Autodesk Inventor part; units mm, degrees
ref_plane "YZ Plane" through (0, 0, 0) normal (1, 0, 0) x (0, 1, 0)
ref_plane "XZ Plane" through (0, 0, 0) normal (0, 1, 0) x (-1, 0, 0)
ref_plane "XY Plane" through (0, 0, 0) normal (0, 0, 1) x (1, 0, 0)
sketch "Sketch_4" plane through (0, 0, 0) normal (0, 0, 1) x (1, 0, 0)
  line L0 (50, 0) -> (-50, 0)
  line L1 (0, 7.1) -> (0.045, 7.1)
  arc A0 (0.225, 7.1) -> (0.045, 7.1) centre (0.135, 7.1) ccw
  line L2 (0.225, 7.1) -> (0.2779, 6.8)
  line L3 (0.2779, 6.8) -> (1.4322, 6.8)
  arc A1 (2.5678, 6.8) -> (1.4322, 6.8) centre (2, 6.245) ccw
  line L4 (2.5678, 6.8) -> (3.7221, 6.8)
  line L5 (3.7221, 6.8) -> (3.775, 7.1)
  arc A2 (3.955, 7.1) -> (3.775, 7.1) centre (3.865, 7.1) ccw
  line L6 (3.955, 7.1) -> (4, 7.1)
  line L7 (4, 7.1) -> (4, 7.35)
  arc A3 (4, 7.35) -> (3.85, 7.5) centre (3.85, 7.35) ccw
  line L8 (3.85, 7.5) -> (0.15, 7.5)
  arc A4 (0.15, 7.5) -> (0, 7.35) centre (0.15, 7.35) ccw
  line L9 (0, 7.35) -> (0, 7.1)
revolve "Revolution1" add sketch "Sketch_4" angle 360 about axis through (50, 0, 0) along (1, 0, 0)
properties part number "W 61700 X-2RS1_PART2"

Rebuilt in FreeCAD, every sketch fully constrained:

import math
import FreeCAD as App
import Part
import Sketcher
Q = App.Units.Quantity

doc = App.newDocument("Part")
params = doc.addObject("Spreadsheet::Sheet", "Params")
for row, (alias, value) in enumerate([
    ("sketch1_radius", "0.09 mm"),
    ("sketch1_radius2", "0.15 mm"),
    ("sketch1_width", "3.7 mm"),
    ("sketch1_height", "0.25 mm"),
    ("revolution_angle", "360 deg"),
], start=1):
    params.set(f"A{row}", alias)
    params.set(f"B{row}", "=" + value)
    params.setAlias(f"B{row}", alias)

body = doc.addObject("PartDesign::Body", "Body")

# Sketch on XY plane
sketch1 = body.newObject("Sketcher::SketchObject", "Sketch")
sketch1.AttachmentSupport = (doc.getObject("XY_Plane"), [""])
sketch1.MapMode = "FlatFace"
sketch1.addGeometry(Part.LineSegment(App.Vector(0, 7.35, 0), App.Vector(0, 7.1, 0)), False)
sketch1.addGeometry(Part.LineSegment(App.Vector(0, 7.1, 0), App.Vector(0.045, 7.1, 0)), False)
sketch1.addGeometry(Part.ArcOfCircle(Part.Circle(App.Vector(0.135, 7.1, 0), App.Vector(0, 0, 1), 0.09), math.radians(0), math.radians(180)), False)
sketch1.addGeometry(Part.LineSegment(App.Vector(0.225, 7.1, 0), App.Vector(0.278, 6.8, 0)), False)
sketch1.addGeometry(Part.LineSegment(App.Vector(0.278, 6.8, 0), App.Vector(1.432, 6.8, 0)), False)
sketch1.addGeometry(Part.ArcOfCircle(Part.Circle(App.Vector(2, 6.245, 0), App.Vector(0, 0, 1), 0.794), math.radians(44), math.radians(136)), False)
sketch1.addGeometry(Part.LineSegment(App.Vector(2.568, 6.8, 0), App.Vector(3.722, 6.8, 0)), False)
sketch1.addGeometry(Part.LineSegment(App.Vector(3.722, 6.8, 0), App.Vector(3.775, 7.1, 0)), False)
sketch1.addGeometry(Part.ArcOfCircle(Part.Circle(App.Vector(3.865, 7.1, 0), App.Vector(0, 0, 1), 0.09), math.radians(0), math.radians(180)), False)
sketch1.addGeometry(Part.LineSegment(App.Vector(3.955, 7.1, 0), App.Vector(4, 7.1, 0)), False)
sketch1.addGeometry(Part.LineSegment(App.Vector(4, 7.1, 0), App.Vector(4, 7.35, 0)), False)
sketch1.addGeometry(Part.ArcOfCircle(Part.Circle(App.Vector(3.85, 7.35, 0), App.Vector(0, 0, 1), 0.15), math.radians(0), math.radians(90)), False)
sketch1.addGeometry(Part.LineSegment(App.Vector(3.85, 7.5, 0), App.Vector(0.15, 7.5, 0)), False)
sketch1.addGeometry(Part.ArcOfCircle(Part.Circle(App.Vector(0.15, 7.35, 0), App.Vector(0, 0, 1), 0.15), math.radians(90), math.radians(180)), False)
sketch1.addConstraint(Sketcher.Constraint("Coincident", 0, 2, 1, 1))
sketch1.addConstraint(Sketcher.Constraint("Coincident", 1, 2, 2, 2))
sketch1.addConstraint(Sketcher.Constraint("Coincident", 2, 1, 3, 1))
sketch1.addConstraint(Sketcher.Constraint("Coincident", 3, 2, 4, 1))
sketch1.addConstraint(Sketcher.Constraint("Coincident", 4, 2, 5, 2))
sketch1.addConstraint(Sketcher.Constraint("Coincident", 5, 1, 6, 1))
sketch1.addConstraint(Sketcher.Constraint("Coincident", 6, 2, 7, 1))
sketch1.addConstraint(Sketcher.Constraint("Coincident", 7, 2, 8, 2))
sketch1.addConstraint(Sketcher.Constraint("Coincident", 8, 1, 9, 1))
sketch1.addConstraint(Sketcher.Constraint("Coincident", 9, 2, 10, 1))
sketch1.addConstraint(Sketcher.Constraint("Tangent", 10, 2, 11, 1))
sketch1.addConstraint(Sketcher.Constraint("Tangent", 11, 2, 12, 1))
sketch1.addConstraint(Sketcher.Constraint("Tangent", 12, 2, 13, 1))
sketch1.addConstraint(Sketcher.Constraint("Tangent", 13, 2, 0, 1))
sketch1.addConstraint(Sketcher.Constraint("Vertical", 0))
sketch1.addConstraint(Sketcher.Constraint("Horizontal", 1))
sketch1.addConstraint(Sketcher.Constraint("Horizontal", 4))
sketch1.addConstraint(Sketcher.Constraint("Horizontal", 6))
sketch1.addConstraint(Sketcher.Constraint("Horizontal", 9))
sketch1.addConstraint(Sketcher.Constraint("Vertical", 10))
sketch1.addConstraint(Sketcher.Constraint("Horizontal", 12))
sketch1.addConstraint(Sketcher.Constraint("Equal", 2, 8))
sketch1.addConstraint(Sketcher.Constraint("Equal", 11, 13))
sketch1.addConstraint(Sketcher.Constraint("PointOnObject", 0, 2, -2))
sketch1.addConstraint(Sketcher.Constraint("Horizontal", 2, 3, 8, 3))
sketch1.addConstraint(Sketcher.Constraint("Horizontal", 8, 3, 0, 2))
sketch1.addConstraint(Sketcher.Constraint("Horizontal", 1, 2, 2, 1))
sketch1.addConstraint(Sketcher.Constraint("Horizontal", 4, 2, 5, 1))
sketch1.addConstraint(Sketcher.Constraint("Horizontal", 2, 1, 7, 2))
sketch1.addConstraint(Sketcher.Constraint("Horizontal", 7, 2, 8, 1))
sketch1.addConstraint(Sketcher.Constraint("Equal", 4, 6))
sketch1.addConstraint(Sketcher.Constraint("Equal", 1, 9))
sketch1.addConstraint(Sketcher.Constraint("Equal", 3, 7))
sketch1.addConstraint(Sketcher.Constraint("Angle", 3, Q("-79.9996 deg")))
sketch1.addConstraint(Sketcher.Constraint("Radius", 2, 0.09))
sketch1.addConstraint(Sketcher.Constraint("Radius", 11, 0.15))
sketch1.addConstraint(Sketcher.Constraint("DistanceX", 12, 2, 12, 1, 3.7))
sketch1.addConstraint(Sketcher.Constraint("Radius", 5, 0.794))
sketch1.addConstraint(Sketcher.Constraint("DistanceY", 0, 2, 0, 1, 0.25))
sketch1.addConstraint(Sketcher.Constraint("DistanceY", -1, 1, 2, 3, 7.1))
sketch1.addConstraint(Sketcher.Constraint("DistanceY", -1, 1, 3, 2, 6.8))
sketch1.addConstraint(Sketcher.Constraint("DistanceX", 1, 1, 1, 2, 0.045))
sketch1.addConstraint(Sketcher.Constraint("DistanceX", 3, 2, 5, 1, 2.29))
sketch1.setExpression("Constraints[34]", "Params.sketch1_radius")
sketch1.setExpression("Constraints[35]", "Params.sketch1_radius2")
sketch1.setExpression("Constraints[36]", "Params.sketch1_width")
sketch1.setExpression("Constraints[38]", "Params.sketch1_height")
revolution = body.newObject("PartDesign::Revolution", "Revolution")
revolution.Profile = sketch1
revolution.ReferenceAxis = (sketch1, ["H_Axis"])
revolution.setExpression("Angle", "Params.revolution_angle")

doc.recompute()
